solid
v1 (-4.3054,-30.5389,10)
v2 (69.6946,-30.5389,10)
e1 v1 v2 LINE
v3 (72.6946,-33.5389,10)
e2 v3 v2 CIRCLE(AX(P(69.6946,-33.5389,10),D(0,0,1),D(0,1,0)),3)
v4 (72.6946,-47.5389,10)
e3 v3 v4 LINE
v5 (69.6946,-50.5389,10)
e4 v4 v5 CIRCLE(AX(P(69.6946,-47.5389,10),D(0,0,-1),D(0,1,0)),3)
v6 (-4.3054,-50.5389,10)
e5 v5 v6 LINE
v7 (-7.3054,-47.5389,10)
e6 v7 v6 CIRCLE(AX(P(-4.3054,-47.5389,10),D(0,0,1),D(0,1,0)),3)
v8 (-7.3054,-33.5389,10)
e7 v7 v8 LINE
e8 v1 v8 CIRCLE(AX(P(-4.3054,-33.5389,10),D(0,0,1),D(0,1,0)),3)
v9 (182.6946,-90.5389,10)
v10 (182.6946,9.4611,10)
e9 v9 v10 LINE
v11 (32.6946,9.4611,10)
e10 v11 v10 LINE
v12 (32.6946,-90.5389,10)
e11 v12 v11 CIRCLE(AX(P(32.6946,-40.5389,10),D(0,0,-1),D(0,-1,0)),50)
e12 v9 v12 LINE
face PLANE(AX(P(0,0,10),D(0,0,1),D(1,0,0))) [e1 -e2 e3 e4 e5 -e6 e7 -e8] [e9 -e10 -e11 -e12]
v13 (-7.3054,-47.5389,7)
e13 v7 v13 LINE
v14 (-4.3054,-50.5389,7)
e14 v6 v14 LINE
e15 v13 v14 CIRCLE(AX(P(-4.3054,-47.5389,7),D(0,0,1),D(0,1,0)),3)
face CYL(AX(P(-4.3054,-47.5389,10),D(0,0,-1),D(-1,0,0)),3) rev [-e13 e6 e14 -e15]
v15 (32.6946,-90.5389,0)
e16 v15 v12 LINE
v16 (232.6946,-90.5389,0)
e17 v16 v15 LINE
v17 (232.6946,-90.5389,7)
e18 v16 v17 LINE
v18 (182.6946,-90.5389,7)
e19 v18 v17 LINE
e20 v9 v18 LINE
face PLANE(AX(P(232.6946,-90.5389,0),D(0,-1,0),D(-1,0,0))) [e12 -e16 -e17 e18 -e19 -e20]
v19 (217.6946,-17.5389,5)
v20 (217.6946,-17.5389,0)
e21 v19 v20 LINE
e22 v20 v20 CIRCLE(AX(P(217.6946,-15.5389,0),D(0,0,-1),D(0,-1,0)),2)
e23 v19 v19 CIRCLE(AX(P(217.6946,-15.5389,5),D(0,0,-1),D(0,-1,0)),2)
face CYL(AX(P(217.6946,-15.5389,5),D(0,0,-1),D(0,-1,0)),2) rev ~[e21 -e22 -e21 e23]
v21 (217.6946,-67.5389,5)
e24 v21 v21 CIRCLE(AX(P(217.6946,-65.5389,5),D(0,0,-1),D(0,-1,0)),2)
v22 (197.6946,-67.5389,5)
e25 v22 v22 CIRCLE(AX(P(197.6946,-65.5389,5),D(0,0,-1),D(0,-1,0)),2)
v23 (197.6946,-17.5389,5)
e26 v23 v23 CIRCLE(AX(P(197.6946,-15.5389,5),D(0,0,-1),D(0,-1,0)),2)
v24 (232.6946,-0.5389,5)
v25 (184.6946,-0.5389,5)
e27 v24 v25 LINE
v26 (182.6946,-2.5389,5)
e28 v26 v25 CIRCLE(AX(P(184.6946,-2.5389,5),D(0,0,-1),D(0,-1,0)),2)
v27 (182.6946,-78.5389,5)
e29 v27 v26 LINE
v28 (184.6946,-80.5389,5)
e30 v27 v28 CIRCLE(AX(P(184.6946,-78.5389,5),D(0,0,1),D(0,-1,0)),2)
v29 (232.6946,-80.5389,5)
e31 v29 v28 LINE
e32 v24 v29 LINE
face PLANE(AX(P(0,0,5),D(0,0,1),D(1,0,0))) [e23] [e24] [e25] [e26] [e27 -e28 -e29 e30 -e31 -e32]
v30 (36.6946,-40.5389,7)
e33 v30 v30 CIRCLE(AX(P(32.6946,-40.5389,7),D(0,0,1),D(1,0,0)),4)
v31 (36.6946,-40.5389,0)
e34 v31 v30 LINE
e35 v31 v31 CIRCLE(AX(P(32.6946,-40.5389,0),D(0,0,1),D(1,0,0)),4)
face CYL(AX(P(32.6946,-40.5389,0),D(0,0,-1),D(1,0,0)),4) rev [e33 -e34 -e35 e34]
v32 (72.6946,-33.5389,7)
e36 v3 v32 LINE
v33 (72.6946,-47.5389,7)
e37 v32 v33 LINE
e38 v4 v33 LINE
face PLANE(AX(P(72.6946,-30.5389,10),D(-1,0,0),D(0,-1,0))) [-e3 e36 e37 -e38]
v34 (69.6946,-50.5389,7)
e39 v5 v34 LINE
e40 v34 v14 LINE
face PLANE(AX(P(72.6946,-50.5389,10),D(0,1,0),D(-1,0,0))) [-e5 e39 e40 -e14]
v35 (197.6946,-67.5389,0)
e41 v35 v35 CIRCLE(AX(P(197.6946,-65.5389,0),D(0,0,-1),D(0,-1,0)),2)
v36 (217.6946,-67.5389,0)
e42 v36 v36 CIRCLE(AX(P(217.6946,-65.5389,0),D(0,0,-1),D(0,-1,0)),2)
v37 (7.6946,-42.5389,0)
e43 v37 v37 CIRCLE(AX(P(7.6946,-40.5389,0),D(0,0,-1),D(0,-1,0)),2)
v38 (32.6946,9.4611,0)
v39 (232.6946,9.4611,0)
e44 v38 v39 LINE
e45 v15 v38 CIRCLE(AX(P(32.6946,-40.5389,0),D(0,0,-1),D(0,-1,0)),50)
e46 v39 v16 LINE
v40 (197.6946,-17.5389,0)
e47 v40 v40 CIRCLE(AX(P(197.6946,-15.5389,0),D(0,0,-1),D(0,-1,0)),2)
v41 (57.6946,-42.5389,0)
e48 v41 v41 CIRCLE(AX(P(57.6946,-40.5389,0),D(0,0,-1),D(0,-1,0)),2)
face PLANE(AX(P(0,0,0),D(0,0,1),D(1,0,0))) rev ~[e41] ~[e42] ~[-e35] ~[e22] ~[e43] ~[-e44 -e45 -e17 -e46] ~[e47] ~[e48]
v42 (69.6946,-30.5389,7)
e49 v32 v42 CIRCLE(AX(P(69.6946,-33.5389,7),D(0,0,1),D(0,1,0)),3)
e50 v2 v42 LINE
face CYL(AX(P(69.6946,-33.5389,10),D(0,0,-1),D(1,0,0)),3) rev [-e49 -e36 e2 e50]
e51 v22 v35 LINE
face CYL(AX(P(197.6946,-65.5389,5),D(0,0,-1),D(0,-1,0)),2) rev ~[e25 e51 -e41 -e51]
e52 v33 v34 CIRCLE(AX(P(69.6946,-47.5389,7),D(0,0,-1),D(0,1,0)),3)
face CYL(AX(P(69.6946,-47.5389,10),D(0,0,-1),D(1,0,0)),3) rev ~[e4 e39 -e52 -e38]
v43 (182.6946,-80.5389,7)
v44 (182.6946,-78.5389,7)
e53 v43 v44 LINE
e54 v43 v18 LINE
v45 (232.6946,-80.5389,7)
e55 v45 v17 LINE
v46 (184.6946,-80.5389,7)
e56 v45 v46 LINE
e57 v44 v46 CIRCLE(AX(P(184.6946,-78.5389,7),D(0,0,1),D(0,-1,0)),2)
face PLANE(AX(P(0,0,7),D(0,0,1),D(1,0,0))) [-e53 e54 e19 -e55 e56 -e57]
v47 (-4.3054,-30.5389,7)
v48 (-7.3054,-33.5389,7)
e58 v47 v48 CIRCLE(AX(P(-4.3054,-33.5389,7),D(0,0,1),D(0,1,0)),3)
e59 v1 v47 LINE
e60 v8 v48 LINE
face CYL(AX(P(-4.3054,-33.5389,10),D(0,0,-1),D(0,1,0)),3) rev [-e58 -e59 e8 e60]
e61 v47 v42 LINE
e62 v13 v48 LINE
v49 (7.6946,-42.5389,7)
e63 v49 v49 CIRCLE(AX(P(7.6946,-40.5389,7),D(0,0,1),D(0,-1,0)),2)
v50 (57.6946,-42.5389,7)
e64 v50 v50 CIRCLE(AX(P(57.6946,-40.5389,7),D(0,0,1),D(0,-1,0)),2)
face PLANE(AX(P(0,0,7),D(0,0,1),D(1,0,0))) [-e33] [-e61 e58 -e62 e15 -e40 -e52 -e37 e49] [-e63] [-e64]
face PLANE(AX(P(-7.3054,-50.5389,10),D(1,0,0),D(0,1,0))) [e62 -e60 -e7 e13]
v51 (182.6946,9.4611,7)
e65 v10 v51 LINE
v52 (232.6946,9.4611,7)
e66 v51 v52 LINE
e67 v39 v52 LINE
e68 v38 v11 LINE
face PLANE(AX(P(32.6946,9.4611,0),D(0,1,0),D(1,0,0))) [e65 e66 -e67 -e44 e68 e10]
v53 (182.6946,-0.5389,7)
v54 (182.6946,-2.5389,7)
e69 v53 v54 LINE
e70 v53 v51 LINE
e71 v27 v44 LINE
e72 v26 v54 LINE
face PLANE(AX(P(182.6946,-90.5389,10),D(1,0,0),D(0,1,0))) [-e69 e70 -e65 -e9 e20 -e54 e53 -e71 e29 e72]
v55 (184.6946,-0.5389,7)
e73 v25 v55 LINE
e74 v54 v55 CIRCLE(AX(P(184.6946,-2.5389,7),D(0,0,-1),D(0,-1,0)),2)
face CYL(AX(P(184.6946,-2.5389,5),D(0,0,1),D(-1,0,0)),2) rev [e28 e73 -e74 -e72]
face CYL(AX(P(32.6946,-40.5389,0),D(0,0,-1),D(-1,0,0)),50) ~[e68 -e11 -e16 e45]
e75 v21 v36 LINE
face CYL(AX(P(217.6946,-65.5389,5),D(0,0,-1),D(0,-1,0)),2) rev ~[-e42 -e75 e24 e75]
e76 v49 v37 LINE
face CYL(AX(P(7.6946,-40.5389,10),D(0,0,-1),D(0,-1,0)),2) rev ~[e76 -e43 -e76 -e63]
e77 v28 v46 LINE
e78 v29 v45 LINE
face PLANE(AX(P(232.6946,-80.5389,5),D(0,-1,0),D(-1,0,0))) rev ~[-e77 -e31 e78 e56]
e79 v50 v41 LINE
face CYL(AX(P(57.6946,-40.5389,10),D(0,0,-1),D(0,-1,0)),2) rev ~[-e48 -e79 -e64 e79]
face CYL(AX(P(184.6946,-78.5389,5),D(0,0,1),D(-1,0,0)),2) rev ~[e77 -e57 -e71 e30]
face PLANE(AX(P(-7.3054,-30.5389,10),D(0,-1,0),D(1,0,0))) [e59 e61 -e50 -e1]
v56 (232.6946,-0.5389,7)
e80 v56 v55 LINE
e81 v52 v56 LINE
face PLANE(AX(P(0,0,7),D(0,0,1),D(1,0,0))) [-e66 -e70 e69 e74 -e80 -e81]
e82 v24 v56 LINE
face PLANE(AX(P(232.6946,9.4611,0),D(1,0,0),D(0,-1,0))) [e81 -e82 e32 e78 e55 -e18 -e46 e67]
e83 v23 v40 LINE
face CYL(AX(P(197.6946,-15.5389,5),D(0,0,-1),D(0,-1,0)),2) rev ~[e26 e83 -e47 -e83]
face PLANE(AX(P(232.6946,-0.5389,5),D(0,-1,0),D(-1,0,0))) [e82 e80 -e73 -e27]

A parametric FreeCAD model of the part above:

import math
import FreeCAD as App
import Part
import Sketcher


def edges_at(feature, points):
    """Names of the edges that pass closest to the given points."""
    edges = feature.Shape.Edges
    near = lambda p: min(range(len(edges)), key=lambda i: edges[i].distToShape(Part.Vertex(*p))[0])
    return sorted({f"Edge{near(p) + 1}" for p in points})


def add_polygon(sketch, points):
    """Adds a closed chain of lines whose ends are joined by coincident constraints."""
    first, n = sketch.GeometryCount, len(points)
    for a, b in zip(points, points[1:] + points[:1]):
        sketch.addGeometry(Part.LineSegment(App.Vector(*a, 0), App.Vector(*b, 0)), False)
    for i in range(n):
        sketch.addConstraint(Sketcher.Constraint("Coincident", first + i, 2, first + (i + 1) % n, 1))

doc = App.newDocument("Part")
body = doc.addObject("PartDesign::Body", "Body")

# Sketch on XY plane
sketch1 = body.newObject("Sketcher::SketchObject", "Sketch")
sketch1.AttachmentSupport = (doc.getObject("XY_Plane"), [""])
sketch1.MapMode = "FlatFace"
sketch1.addGeometry(Part.LineSegment(App.Vector(32.6946, -90.5389, 0), App.Vector(232.6946, -90.5389, 0)), False)
sketch1.addGeometry(Part.LineSegment(App.Vector(232.6946, -90.5389, 0), App.Vector(232.6946, 9.4611, 0)), False)
sketch1.addGeometry(Part.LineSegment(App.Vector(232.6946, 9.4611, 0), App.Vector(32.6946, 9.4611, 0)), False)
sketch1.addGeometry(Part.ArcOfCircle(Part.Circle(App.Vector(32.6946, -40.5389, 0), App.Vector(0, 0, 1), 50), math.radians(90), math.radians(270)), False)
sketch1.addGeometry(Part.Circle(App.Vector(32.6946, -40.5389, 0), App.Vector(0, 0, 1), 4), False)
sketch1.addConstraint(Sketcher.Constraint("Coincident", 0, 2, 1, 1))
sketch1.addConstraint(Sketcher.Constraint("Coincident", 1, 2, 2, 1))
sketch1.addConstraint(Sketcher.Constraint("Tangent", 2, 2, 3, 1))
sketch1.addConstraint(Sketcher.Constraint("Tangent", 3, 2, 0, 1))
sketch1.addConstraint(Sketcher.Constraint("Horizontal", 0))
sketch1.addConstraint(Sketcher.Constraint("Vertical", 1))
sketch1.addConstraint(Sketcher.Constraint("Horizontal", 2))
sketch1.addConstraint(Sketcher.Constraint("Coincident", 4, 3, 3, 3))
sketch1.addConstraint(Sketcher.Constraint("Diameter", 4, 8.0))
sketch1.addConstraint(Sketcher.Constraint("Radius", 3, 50.0))
sketch1.addConstraint(Sketcher.Constraint("DistanceX", 0, 1, 0, 2, 200.0))
sketch1.addConstraint(Sketcher.Constraint("DistanceY", 3, 3, -1, 1, 40.539))
sketch1.addConstraint(Sketcher.Constraint("DistanceX", -1, 1, 3, 3, 32.6946))
pad1 = body.newObject("PartDesign::Pad", "Pad")
pad1.Profile = sketch1
pad1.Length = 10

# Sketch on XY plane
sketch2 = body.newObject("Sketcher::SketchObject", "Sketch001")
sketch2.AttachmentSupport = (doc.getObject("XY_Plane"), [""])
sketch2.MapMode = "FlatFace"
sketch2.AttachmentOffset = App.Placement(App.Vector(0, 0, 10), App.Rotation())
add_polygon(sketch2, [(232.6946, 9.4611), (182.6946, 9.4611), (182.6946, -90.5389), (232.6946, -90.5389)])  # lines 0-3
sketch2.addConstraint(Sketcher.Constraint("Horizontal", 0))
sketch2.addConstraint(Sketcher.Constraint("Vertical", 1))
sketch2.addConstraint(Sketcher.Constraint("Horizontal", 2))
sketch2.addConstraint(Sketcher.Constraint("Vertical", 3))
sketch2.addConstraint(Sketcher.Constraint("DistanceX", 0, 2, 0, 1, 50.0))
sketch2.addConstraint(Sketcher.Constraint("DistanceY", 1, 2, 1, 1, 100.0))
sketch2.addConstraint(Sketcher.Constraint("DistanceY", -1, 1, 0, 2, 9.461))
sketch2.addConstraint(Sketcher.Constraint("DistanceX", -1, 1, 0, 2, 182.6946))
pocket1 = body.newObject("PartDesign::Pocket", "Pocket")
pocket1.Profile = sketch2
pocket1.Length = 5

# Sketch on XY plane
sketch3 = body.newObject("Sketcher::SketchObject", "Sketch002")
sketch3.AttachmentSupport = (doc.getObject("XY_Plane"), [""])
sketch3.MapMode = "FlatFace"
sketch3.AttachmentOffset = App.Placement(App.Vector(0, 0, 5), App.Rotation())
sketch3.addGeometry(Part.Circle(App.Vector(197.6946, -65.5389, 0), App.Vector(0, 0, 1), 2), False)
sketch3.addGeometry(Part.Circle(App.Vector(197.6946, -15.5389, 0), App.Vector(0, 0, 1), 2), False)
sketch3.addGeometry(Part.Circle(App.Vector(217.6946, -15.5389, 0), App.Vector(0, 0, 1), 2), False)
sketch3.addGeometry(Part.Circle(App.Vector(217.6946, -65.5389, 0), App.Vector(0, 0, 1), 2), False)
sketch3.addConstraint(Sketcher.Constraint("Equal", 0, 1))
sketch3.addConstraint(Sketcher.Constraint("Equal", 1, 2))
sketch3.addConstraint(Sketcher.Constraint("Equal", 2, 3))
sketch3.addConstraint(Sketcher.Constraint("Horizontal", 1, 3, 2, 3))
sketch3.addConstraint(Sketcher.Constraint("Horizontal", 0, 3, 3, 3))
sketch3.addConstraint(Sketcher.Constraint("Vertical", 0, 3, 1, 3))
sketch3.addConstraint(Sketcher.Constraint("Vertical", 2, 3, 3, 3))
sketch3.addConstraint(Sketcher.Constraint("Diameter", 0, 4.0))
sketch3.addConstraint(Sketcher.Constraint("DistanceY", 0, 3, 1, 3, 50.0))
sketch3.addConstraint(Sketcher.Constraint("DistanceX", 1, 3, 2, 3, 20.0))
sketch3.addConstraint(Sketcher.Constraint("DistanceY", 0, 3, -1, 1, 65.539))
sketch3.addConstraint(Sketcher.Constraint("DistanceX", -1, 1, 0, 3, 197.6946))
doc.recompute()
hole = body.newObject("PartDesign::Hole", "Hole")
hole.Profile = sketch3
hole.ThreadType = "None"
hole.Diameter = 4
hole.DepthType = "ThroughAll"

# Sketch on XY plane
sketch4 = body.newObject("Sketcher::SketchObject", "Sketch003")
sketch4.AttachmentSupport = (doc.getObject("XY_Plane"), [""])
sketch4.MapMode = "FlatFace"
sketch4.AttachmentOffset = App.Placement(App.Vector(0, 0, 10), App.Rotation())
sketch4.addGeometry(Part.Circle(App.Vector(7.6946, -40.5389, 0), App.Vector(0, 0, 1), 2), False)
sketch4.addGeometry(Part.Circle(App.Vector(57.6946, -40.5389, 0), App.Vector(0, 0, 1), 2), False)
sketch4.addConstraint(Sketcher.Constraint("Equal", 0, 1))
sketch4.addConstraint(Sketcher.Constraint("Horizontal", 0, 3, 1, 3))
sketch4.addConstraint(Sketcher.Constraint("Diameter", 0, 4.0))
sketch4.addConstraint(Sketcher.Constraint("DistanceX", 0, 3, 1, 3, 50.0))
sketch4.addConstraint(Sketcher.Constraint("DistanceY", 0, 3, -1, 1, 40.539))
sketch4.addConstraint(Sketcher.Constraint("DistanceX", -1, 1, 0, 3, 7.6946))
doc.recompute()
hole2 = body.newObject("PartDesign::Hole", "Hole001")
hole2.Profile = sketch4
hole2.ThreadType = "None"
hole2.Diameter = 4
hole2.DepthType = "ThroughAll"

# Sketch on XY plane
sketch5 = body.newObject("Sketcher::SketchObject", "Sketch004")
sketch5.AttachmentSupport = (doc.getObject("XY_Plane"), [""])
sketch5.MapMode = "FlatFace"
sketch5.AttachmentOffset = App.Placement(App.Vector(0, 0, 10), App.Rotation())
add_polygon(sketch5, [(-7.3054, -50.5389), (72.6946, -50.5389), (72.6946, -30.5389), (-7.3054, -30.5389)])  # lines 0-3
sketch5.addGeometry(Part.Circle(App.Vector(7.6946, -40.5389, 0), App.Vector(0, 0, 1), 2), False)  # 4
sketch5.addGeometry(Part.Circle(App.Vector(32.6946, -40.5389, 0), App.Vector(0, 0, 1), 4), False)  # 5
sketch5.addGeometry(Part.Circle(App.Vector(57.6946, -40.5389, 0), App.Vector(0, 0, 1), 2), False)  # 6
sketch5.addConstraint(Sketcher.Constraint("Horizontal", 0))
sketch5.addConstraint(Sketcher.Constraint("Vertical", 1))
sketch5.addConstraint(Sketcher.Constraint("Horizontal", 2))
sketch5.addConstraint(Sketcher.Constraint("Vertical", 3))
sketch5.addConstraint(Sketcher.Constraint("Equal", 4, 6))
sketch5.addConstraint(Sketcher.Constraint("Horizontal", 4, 3, 5, 3))
sketch5.addConstraint(Sketcher.Constraint("Horizontal", 5, 3, 6, 3))
sketch5.addConstraint(Sketcher.Constraint("DistanceX", 0, 1, 0, 2, 80.0))
sketch5.addConstraint(Sketcher.Constraint("DistanceY", 1, 1, 1, 2, 20.0))
sketch5.addConstraint(Sketcher.Constraint("Diameter", 4, 4.0))
sketch5.addConstraint(Sketcher.Constraint("Diameter", 5, 8.0))
sketch5.addConstraint(Sketcher.Constraint("DistanceY", 0, 2, 6, 3, 10.0))
sketch5.addConstraint(Sketcher.Constraint("DistanceX", 5, 3, 0, 2, 40.0))
sketch5.addConstraint(Sketcher.Constraint("DistanceX", 4, 3, 5, 3, 25.0))
sketch5.addConstraint(Sketcher.Constraint("DistanceX", 5, 3, 6, 3, 25.0))
sketch5.addConstraint(Sketcher.Constraint("DistanceY", 4, 3, -1, 1, 40.539))
sketch5.addConstraint(Sketcher.Constraint("DistanceX", -1, 1, 4, 3, 7.6946))
pocket2 = body.newObject("PartDesign::Pocket", "Pocket001")
pocket2.Profile = sketch5
pocket2.Length = 3

# Sketch on XY plane
sketch6 = body.newObject("Sketcher::SketchObject", "Sketch005")
sketch6.AttachmentSupport = (doc.getObject("XY_Plane"), [""])
sketch6.MapMode = "FlatFace"
sketch6.AttachmentOffset = App.Placement(App.Vector(0, 0, 5), App.Rotation())
add_polygon(sketch6, [(232.6946, -90.5389), (232.6946, -80.5389), (182.6946, -80.5389), (182.6946, -90.5389)])  # lines 0-3
add_polygon(sketch6, [(232.6946, -0.5389), (232.6946, 9.4611), (182.6946, 9.4611), (182.6946, -0.5389)])  # lines 4-7
sketch6.addConstraint(Sketcher.Constraint("Vertical", 0))
sketch6.addConstraint(Sketcher.Constraint("Horizontal", 1))
sketch6.addConstraint(Sketcher.Constraint("Vertical", 2))
sketch6.addConstraint(Sketcher.Constraint("Horizontal", 3))
sketch6.addConstraint(Sketcher.Constraint("Vertical", 4))
sketch6.addConstraint(Sketcher.Constraint("Horizontal", 5))
sketch6.addConstraint(Sketcher.Constraint("Vertical", 6))
sketch6.addConstraint(Sketcher.Constraint("Horizontal", 7))
sketch6.addConstraint(Sketcher.Constraint("Vertical", 3, 2, 4, 2))
sketch6.addConstraint(Sketcher.Constraint("Vertical", 2, 2, 5, 2))
sketch6.addConstraint(Sketcher.Constraint("Equal", 2, 4))
sketch6.addConstraint(Sketcher.Constraint("DistanceY", 0, 1, 0, 2, 10.0))
sketch6.addConstraint(Sketcher.Constraint("DistanceX", 1, 2, 1, 1, 50.0))
sketch6.addConstraint(Sketcher.Constraint("DistanceY", 0, 2, 4, 2, 90.0))
sketch6.addConstraint(Sketcher.Constraint("DistanceY", 0, 2, -1, 1, 80.539))
sketch6.addConstraint(Sketcher.Constraint("DistanceX", -1, 1, 0, 2, 232.6946))
pad2 = body.newObject("PartDesign::Pad", "Pad001")
pad2.Profile = sketch6
pad2.Length = 2
doc.recompute()

fillet = body.newObject("PartDesign::Fillet", "Fillet")
fillet.Base = (pad2, edges_at(pad2, [(182.695, -0.539, 6), (182.695, -80.539, 6)]))
fillet.Radius = 2
doc.recompute()

fillet2 = body.newObject("PartDesign::Fillet", "Fillet001")
fillet2.Base = (fillet, edges_at(fillet, [
    (-7.305, -30.539, 8.5),
    (-7.305, -50.539, 8.5),
    (72.695, -30.539, 8.5),
    (72.695, -50.539, 8.5),
]))
fillet2.Radius = 3

doc.recompute()
